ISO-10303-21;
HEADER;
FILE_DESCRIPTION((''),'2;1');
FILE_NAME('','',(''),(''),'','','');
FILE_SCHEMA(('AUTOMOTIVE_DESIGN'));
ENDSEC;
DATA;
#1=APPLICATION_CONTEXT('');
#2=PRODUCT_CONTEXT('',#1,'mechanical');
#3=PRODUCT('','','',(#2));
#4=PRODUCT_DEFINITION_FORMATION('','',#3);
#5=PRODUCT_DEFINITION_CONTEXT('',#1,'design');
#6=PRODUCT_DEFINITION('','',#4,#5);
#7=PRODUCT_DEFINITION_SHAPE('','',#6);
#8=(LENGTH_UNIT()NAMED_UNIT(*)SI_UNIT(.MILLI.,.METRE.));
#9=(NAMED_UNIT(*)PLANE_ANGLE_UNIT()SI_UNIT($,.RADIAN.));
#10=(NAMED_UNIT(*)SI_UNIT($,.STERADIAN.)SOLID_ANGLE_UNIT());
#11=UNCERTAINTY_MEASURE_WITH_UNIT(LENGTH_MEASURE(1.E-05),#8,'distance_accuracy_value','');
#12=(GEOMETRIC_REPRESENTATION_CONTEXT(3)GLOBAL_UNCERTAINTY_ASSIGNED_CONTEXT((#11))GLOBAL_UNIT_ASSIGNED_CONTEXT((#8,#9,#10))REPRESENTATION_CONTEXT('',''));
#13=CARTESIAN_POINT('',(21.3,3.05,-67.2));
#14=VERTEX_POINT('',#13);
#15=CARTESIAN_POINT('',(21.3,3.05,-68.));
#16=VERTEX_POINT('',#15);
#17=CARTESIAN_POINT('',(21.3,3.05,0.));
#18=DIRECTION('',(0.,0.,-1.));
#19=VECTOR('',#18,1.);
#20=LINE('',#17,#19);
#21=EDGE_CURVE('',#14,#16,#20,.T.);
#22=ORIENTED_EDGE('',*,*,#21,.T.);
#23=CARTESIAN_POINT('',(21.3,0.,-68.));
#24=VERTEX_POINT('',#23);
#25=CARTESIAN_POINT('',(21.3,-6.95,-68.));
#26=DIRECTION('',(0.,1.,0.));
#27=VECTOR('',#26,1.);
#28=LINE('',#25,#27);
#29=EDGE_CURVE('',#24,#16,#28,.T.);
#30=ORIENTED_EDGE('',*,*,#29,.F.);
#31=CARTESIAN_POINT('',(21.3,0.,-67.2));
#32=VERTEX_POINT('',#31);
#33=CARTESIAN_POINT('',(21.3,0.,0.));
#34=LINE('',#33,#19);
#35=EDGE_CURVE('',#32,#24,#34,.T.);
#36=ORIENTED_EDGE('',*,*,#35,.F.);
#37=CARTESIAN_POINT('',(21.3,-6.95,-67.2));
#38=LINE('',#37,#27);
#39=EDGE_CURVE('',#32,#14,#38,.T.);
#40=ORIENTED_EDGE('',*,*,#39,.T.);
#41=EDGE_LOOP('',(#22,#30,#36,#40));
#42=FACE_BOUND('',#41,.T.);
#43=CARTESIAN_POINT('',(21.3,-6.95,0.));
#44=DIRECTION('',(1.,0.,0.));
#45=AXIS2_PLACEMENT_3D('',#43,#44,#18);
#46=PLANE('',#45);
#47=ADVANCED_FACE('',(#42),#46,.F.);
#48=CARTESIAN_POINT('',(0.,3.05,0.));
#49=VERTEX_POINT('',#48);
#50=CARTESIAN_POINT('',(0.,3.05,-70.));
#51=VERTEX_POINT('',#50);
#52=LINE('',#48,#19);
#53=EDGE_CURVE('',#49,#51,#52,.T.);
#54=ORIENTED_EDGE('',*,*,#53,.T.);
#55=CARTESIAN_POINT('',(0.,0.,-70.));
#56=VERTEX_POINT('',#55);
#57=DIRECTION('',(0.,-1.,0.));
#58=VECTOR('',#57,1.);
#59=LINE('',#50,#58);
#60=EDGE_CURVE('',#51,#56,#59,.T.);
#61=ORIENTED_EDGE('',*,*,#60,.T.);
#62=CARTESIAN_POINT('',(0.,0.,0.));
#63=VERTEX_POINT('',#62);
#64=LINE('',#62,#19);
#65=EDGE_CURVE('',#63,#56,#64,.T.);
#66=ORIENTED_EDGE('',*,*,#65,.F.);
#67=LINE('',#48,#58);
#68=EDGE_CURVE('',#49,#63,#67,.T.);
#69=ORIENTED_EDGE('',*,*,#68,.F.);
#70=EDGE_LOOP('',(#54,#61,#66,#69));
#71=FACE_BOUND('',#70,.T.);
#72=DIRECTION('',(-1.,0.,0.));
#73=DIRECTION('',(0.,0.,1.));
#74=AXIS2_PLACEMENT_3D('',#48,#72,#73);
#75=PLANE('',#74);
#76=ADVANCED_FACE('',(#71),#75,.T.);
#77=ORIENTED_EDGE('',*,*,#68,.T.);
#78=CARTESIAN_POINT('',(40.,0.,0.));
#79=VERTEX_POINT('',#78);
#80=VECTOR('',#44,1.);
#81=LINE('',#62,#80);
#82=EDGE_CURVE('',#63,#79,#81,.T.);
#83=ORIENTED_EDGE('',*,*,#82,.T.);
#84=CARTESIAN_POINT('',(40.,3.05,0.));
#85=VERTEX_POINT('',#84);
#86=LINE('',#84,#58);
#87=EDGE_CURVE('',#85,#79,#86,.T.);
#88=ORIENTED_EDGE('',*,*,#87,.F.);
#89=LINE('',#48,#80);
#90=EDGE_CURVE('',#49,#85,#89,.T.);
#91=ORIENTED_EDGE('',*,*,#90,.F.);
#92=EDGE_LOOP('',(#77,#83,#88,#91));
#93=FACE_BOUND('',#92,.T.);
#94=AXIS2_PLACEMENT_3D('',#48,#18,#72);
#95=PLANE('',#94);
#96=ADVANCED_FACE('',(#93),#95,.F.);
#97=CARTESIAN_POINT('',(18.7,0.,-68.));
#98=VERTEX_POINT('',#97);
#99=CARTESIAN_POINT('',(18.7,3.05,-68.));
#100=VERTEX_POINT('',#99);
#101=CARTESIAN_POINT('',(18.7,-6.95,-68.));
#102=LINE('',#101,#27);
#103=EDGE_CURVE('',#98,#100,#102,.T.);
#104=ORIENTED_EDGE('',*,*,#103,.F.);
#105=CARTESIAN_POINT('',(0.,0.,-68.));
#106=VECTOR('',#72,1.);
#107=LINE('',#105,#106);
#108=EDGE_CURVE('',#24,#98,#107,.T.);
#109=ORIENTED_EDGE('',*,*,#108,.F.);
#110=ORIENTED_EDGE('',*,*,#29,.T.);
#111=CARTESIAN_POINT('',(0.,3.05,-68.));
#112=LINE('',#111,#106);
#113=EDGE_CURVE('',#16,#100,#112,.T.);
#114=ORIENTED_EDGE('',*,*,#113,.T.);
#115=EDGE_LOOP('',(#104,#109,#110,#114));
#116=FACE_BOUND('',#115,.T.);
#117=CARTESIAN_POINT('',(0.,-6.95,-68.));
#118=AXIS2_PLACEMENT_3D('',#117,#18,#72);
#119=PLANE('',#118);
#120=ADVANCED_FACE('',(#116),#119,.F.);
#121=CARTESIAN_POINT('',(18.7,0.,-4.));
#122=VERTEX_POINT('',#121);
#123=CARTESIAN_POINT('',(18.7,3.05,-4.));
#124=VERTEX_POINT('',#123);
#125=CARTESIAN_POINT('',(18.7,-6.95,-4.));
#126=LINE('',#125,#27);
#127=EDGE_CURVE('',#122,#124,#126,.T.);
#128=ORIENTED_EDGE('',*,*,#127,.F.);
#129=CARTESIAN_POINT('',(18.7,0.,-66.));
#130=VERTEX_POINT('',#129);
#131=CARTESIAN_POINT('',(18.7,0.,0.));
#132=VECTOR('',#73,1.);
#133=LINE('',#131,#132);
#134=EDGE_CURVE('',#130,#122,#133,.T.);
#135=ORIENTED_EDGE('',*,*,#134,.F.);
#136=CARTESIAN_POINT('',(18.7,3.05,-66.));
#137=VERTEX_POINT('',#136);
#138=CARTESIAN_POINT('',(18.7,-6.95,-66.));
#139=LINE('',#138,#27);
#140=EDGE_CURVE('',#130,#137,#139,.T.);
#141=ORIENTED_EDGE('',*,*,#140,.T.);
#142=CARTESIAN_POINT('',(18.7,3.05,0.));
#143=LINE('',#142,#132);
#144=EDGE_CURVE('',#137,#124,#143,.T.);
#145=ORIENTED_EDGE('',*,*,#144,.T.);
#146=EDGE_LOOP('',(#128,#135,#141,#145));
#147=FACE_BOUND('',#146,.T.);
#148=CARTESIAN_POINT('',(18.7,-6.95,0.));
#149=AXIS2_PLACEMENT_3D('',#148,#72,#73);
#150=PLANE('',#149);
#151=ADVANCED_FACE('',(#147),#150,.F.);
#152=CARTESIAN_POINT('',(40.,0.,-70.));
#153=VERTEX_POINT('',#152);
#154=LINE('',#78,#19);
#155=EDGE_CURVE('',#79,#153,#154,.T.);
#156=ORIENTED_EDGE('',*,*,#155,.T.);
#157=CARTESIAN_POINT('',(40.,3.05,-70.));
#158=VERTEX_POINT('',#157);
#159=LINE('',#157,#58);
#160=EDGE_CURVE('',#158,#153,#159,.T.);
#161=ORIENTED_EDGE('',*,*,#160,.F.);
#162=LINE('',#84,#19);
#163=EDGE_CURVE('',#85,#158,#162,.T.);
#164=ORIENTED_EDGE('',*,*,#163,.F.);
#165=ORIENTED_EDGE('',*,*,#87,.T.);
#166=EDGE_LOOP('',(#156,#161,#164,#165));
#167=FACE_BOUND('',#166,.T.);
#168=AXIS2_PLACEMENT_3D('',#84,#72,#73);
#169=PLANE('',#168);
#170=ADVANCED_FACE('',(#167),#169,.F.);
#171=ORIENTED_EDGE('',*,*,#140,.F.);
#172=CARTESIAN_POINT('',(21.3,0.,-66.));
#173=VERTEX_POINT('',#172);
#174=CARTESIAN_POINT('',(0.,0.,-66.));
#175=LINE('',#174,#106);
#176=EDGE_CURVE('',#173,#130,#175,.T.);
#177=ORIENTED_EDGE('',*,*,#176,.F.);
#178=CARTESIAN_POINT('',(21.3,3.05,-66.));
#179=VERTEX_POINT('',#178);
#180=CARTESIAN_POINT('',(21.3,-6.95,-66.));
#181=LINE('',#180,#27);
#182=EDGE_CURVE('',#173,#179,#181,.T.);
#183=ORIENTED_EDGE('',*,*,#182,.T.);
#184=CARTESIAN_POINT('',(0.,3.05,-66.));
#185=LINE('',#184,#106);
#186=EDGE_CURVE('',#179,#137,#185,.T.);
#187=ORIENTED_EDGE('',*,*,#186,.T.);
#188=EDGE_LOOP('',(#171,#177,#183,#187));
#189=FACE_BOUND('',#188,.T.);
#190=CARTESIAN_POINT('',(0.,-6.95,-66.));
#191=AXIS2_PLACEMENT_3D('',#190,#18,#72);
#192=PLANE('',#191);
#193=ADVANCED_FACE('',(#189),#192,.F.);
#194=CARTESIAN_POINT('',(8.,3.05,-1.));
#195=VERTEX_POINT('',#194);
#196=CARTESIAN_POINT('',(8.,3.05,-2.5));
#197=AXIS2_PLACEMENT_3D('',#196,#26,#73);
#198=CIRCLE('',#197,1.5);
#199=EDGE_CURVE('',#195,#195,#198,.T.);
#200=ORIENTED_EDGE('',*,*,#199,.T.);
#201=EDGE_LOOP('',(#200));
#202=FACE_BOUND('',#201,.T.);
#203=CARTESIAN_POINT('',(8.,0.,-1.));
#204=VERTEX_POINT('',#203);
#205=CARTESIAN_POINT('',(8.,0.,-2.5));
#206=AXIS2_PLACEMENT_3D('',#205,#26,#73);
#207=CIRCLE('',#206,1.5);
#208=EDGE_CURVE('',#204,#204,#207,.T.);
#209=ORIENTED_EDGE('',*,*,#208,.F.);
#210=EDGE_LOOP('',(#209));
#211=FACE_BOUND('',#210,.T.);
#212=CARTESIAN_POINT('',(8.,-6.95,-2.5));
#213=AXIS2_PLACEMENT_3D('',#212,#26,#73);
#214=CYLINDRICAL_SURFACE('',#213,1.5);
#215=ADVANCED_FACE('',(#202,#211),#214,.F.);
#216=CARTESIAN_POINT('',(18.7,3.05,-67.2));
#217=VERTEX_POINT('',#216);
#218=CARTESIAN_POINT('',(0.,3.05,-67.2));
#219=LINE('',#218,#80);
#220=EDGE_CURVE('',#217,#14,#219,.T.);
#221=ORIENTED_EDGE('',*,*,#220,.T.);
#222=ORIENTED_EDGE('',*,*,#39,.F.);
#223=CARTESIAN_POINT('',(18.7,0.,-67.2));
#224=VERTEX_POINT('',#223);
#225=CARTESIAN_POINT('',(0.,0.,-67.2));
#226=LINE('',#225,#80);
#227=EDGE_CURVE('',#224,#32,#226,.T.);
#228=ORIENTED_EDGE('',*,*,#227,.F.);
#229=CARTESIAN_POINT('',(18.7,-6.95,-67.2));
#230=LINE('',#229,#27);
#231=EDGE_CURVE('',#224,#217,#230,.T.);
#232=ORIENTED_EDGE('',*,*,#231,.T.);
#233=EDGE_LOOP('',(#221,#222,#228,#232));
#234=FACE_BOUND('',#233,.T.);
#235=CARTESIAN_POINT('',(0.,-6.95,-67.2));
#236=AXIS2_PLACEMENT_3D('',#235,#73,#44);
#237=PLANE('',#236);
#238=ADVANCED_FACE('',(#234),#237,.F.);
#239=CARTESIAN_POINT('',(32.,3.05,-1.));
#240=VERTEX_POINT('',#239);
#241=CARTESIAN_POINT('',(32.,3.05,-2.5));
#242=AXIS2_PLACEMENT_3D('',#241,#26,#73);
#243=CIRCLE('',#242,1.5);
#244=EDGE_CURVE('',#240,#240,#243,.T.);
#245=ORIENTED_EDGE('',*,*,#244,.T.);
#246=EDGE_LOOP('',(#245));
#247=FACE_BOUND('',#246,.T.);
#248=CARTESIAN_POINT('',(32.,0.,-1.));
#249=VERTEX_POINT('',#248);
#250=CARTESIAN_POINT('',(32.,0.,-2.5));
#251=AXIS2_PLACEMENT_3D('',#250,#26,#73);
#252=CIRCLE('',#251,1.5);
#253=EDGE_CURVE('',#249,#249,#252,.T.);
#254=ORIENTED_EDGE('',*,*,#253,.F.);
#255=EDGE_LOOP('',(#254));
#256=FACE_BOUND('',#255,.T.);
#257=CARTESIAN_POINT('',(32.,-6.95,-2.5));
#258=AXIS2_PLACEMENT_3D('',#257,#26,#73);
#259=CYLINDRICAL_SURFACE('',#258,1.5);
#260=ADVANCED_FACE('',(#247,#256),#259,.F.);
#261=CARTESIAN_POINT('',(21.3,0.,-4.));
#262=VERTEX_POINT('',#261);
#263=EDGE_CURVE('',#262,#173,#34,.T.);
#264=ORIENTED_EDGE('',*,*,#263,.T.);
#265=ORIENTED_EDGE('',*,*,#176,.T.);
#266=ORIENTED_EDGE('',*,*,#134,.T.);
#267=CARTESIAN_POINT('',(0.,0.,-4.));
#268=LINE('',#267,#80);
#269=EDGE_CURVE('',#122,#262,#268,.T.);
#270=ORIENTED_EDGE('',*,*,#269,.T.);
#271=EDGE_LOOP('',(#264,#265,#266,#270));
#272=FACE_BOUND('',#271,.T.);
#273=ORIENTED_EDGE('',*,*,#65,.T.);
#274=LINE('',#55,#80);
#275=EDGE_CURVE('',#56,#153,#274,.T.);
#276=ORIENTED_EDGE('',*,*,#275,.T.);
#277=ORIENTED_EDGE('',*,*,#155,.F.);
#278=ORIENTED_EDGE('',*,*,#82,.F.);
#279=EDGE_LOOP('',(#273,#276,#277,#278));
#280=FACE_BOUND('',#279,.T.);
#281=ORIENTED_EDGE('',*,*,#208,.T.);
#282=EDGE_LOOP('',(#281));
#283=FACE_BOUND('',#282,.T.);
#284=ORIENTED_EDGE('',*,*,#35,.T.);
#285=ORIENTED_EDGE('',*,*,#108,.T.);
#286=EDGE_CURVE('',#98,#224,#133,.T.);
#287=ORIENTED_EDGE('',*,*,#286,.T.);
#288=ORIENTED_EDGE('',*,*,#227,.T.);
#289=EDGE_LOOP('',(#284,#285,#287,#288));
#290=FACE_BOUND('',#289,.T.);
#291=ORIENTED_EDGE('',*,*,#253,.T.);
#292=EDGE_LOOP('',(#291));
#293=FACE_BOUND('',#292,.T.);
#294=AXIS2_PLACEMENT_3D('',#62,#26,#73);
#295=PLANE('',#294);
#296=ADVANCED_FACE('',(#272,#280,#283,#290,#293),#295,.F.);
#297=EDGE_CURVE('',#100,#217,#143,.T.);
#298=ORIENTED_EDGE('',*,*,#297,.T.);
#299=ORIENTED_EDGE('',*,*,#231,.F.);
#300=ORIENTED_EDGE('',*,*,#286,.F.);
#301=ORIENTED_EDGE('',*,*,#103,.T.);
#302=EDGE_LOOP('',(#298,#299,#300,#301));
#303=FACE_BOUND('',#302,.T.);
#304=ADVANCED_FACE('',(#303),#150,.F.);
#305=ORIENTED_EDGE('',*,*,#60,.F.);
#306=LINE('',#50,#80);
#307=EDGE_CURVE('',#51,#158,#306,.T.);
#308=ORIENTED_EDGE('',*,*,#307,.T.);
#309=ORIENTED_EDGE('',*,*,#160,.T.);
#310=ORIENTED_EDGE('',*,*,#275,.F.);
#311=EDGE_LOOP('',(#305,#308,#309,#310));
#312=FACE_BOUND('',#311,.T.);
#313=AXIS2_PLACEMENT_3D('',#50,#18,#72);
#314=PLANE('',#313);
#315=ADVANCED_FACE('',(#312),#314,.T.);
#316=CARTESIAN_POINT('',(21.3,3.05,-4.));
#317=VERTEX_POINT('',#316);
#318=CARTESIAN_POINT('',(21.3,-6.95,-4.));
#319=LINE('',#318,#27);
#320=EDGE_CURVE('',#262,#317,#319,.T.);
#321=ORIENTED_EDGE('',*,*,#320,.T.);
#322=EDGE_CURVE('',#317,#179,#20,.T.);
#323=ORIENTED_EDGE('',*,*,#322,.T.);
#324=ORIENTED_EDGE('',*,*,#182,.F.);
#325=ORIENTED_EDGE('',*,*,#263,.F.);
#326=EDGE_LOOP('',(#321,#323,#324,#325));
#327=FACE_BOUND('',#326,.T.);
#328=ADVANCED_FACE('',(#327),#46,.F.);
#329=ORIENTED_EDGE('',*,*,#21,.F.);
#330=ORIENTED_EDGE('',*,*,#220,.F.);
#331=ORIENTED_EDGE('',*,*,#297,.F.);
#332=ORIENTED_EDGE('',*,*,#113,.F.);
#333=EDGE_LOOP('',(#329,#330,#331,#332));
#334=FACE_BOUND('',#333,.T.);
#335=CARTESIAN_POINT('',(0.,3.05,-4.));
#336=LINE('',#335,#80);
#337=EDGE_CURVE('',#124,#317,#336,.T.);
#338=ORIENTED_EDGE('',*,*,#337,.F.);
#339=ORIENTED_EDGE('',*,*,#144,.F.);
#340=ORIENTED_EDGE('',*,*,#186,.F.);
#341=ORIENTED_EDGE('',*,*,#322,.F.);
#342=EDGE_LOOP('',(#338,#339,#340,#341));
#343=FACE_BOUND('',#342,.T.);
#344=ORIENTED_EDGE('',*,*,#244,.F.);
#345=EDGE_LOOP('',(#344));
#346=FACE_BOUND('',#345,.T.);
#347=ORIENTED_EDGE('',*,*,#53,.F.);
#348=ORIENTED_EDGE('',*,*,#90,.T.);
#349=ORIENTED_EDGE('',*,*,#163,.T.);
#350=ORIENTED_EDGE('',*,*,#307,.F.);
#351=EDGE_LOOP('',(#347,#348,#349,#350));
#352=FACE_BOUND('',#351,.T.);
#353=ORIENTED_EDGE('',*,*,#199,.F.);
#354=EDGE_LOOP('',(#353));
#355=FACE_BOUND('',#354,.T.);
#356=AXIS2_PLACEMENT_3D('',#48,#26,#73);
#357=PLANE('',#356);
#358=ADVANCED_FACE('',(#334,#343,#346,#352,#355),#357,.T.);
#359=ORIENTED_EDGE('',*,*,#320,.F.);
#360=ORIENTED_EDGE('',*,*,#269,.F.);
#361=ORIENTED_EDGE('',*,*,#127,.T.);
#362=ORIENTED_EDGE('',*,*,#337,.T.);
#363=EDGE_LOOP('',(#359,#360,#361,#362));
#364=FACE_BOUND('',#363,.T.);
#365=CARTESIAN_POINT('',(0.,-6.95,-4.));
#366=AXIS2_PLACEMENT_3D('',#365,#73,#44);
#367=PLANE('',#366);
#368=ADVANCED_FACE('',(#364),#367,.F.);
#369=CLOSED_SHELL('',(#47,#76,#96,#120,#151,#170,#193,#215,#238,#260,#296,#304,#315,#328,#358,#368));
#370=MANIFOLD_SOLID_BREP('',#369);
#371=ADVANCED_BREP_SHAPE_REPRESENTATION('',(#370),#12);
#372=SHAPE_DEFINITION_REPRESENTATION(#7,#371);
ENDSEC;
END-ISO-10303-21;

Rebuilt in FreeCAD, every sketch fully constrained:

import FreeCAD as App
import Part
import Sketcher

V = App.Vector

doc = App.newDocument("Part")
params = doc.addObject("Spreadsheet::Sheet", "Params")
for row, (alias, value) in enumerate([
    ("sketch1_width", "40 mm"),
    ("sketch1_height", "70 mm"),
    ("pad1_length", "3.05 mm"),
    ("sketch2_height", "62 mm"),
    ("sketch2_width", "2.6 mm"),
    ("sketch2_height2", "0.8 mm"),
    ("pocket1_length", "10 mm"),
    ("sketch3_diameter", "3 mm"),
    ("pocket2_length", "10 mm"),
], start=1):
    params.set(f"A{row}", alias)
    params.set(f"B{row}", "=" + value)
    params.setAlias(f"B{row}", alias)

body = doc.addObject("PartDesign::Body", "Body")

# Sketch on XZ plane
sketch1 = body.newObject("Sketcher::SketchObject", "Sketch")
sketch1.AttachmentSupport = (doc.getObject("XZ_Plane"), [""])
sketch1.MapMode = "FlatFace"
sketch1.addGeometry([
    Part.LineSegment(V(0, -70, 0), V(0, 0, 0)),
    Part.LineSegment(V(0, 0, 0), V(40, 0, 0)),
    Part.LineSegment(V(40, 0, 0), V(40, -70, 0)),
    Part.LineSegment(V(40, -70, 0), V(0, -70, 0)),
], False)
sketch1.addConstraint([
    Sketcher.Constraint("Coincident", 0, 2, 1, 1),
    Sketcher.Constraint("Coincident", 1, 2, 2, 1),
    Sketcher.Constraint("Coincident", 2, 2, 3, 1),
    Sketcher.Constraint("Coincident", 3, 2, 0, 1),
    Sketcher.Constraint("Vertical", 0),
    Sketcher.Constraint("Horizontal", 1),
    Sketcher.Constraint("Vertical", 2),
    Sketcher.Constraint("Horizontal", 3),
    Sketcher.Constraint("Coincident", 0, 2, -1, 1),
    Sketcher.Constraint("DistanceX", 1, 1, 1, 2, 40.0),
    Sketcher.Constraint("DistanceY", 0, 1, 0, 2, 70.0),
])
sketch1.setExpression("Constraints[9]", "Params.sketch1_width")
sketch1.setExpression("Constraints[10]", "Params.sketch1_height")
pad1 = body.newObject("PartDesign::Pad", "Pad")
pad1.Profile = sketch1
pad1.setExpression("Length", "Params.pad1_length")
pad1.Reversed = True

# Sketch on XZ plane
sketch2 = body.newObject("Sketcher::SketchObject", "Sketch001")
sketch2.AttachmentSupport = (doc.getObject("XZ_Plane"), [""])
sketch2.MapMode = "FlatFace"
sketch2.AttachmentOffset = App.Placement(V(0, 0, -3.05), App.Rotation())
sketch2.addGeometry([
    Part.LineSegment(V(18.7, -66, 0), V(18.7, -4, 0)),  # 0
    Part.LineSegment(V(18.7, -4, 0), V(21.3, -4, 0)),  # 1
    Part.LineSegment(V(21.3, -4, 0), V(21.3, -66, 0)),  # 2
    Part.LineSegment(V(21.3, -66, 0), V(18.7, -66, 0)),  # 3
    Part.LineSegment(V(18.7, -68, 0), V(18.7, -67.2, 0)),  # 4
    Part.LineSegment(V(18.7, -67.2, 0), V(21.3, -67.2, 0)),  # 5
    Part.LineSegment(V(21.3, -67.2, 0), V(21.3, -68, 0)),  # 6
    Part.LineSegment(V(21.3, -68, 0), V(18.7, -68, 0)),  # 7
], False)
sketch2.addConstraint([
    Sketcher.Constraint("Coincident", 0, 2, 1, 1),
    Sketcher.Constraint("Coincident", 1, 2, 2, 1),
    Sketcher.Constraint("Coincident", 2, 2, 3, 1),
    Sketcher.Constraint("Coincident", 3, 2, 0, 1),
    Sketcher.Constraint("Coincident", 4, 2, 5, 1),
    Sketcher.Constraint("Coincident", 5, 2, 6, 1),
    Sketcher.Constraint("Coincident", 6, 2, 7, 1),
    Sketcher.Constraint("Coincident", 7, 2, 4, 1),
    Sketcher.Constraint("Vertical", 0),
    Sketcher.Constraint("Horizontal", 1),
    Sketcher.Constraint("Vertical", 2),
    Sketcher.Constraint("Horizontal", 3),
    Sketcher.Constraint("Vertical", 4),
    Sketcher.Constraint("Horizontal", 5),
    Sketcher.Constraint("Vertical", 6),
    Sketcher.Constraint("Horizontal", 7),
    Sketcher.Constraint("Vertical", 3, 2, 4, 2),
    Sketcher.Constraint("Vertical", 2, 2, 5, 2),
    Sketcher.Constraint("DistanceY", 0, 1, 0, 2, 62.0),
    Sketcher.Constraint("DistanceX", 1, 1, 1, 2, 2.6),
    Sketcher.Constraint("DistanceY", 4, 1, 4, 2, 0.8),
    Sketcher.Constraint("DistanceY", 0, 2, -1, 1, 4.0),
    Sketcher.Constraint("DistanceY", 6, 2, -1, 1, 68.0),
    Sketcher.Constraint("DistanceX", -1, 1, 0, 2, 18.7),
])
sketch2.setExpression("Constraints[18]", "Params.sketch2_height")
sketch2.setExpression("Constraints[19]", "Params.sketch2_width")
sketch2.setExpression("Constraints[20]", "Params.sketch2_height2")
pocket1 = body.newObject("PartDesign::Pocket", "Pocket")
pocket1.Profile = sketch2
pocket1.setExpression("Length", "Params.pocket1_length")
pocket1.Reversed = True

# Sketch on XZ plane
sketch3 = body.newObject("Sketcher::SketchObject", "Sketch002")
sketch3.AttachmentSupport = (doc.getObject("XZ_Plane"), [""])
sketch3.MapMode = "FlatFace"
sketch3.AttachmentOffset = App.Placement(V(0, 0, -3.05), App.Rotation())
sketch3.addGeometry([
    Part.Circle(V(8, -2.5, 0), V(0, 0, 1), 1.5),
    Part.Circle(V(32, -2.5, 0), V(0, 0, 1), 1.5),
], False)
sketch3.addConstraint([
    Sketcher.Constraint("Equal", 0, 1),
    Sketcher.Constraint("Horizontal", 0, 3, 1, 3),
    Sketcher.Constraint("Diameter", 0, 3.0),
    Sketcher.Constraint("DistanceX", -1, 1, 0, 3, 8.0),
    Sketcher.Constraint("DistanceX", -1, 1, 1, 3, 32.0),
    Sketcher.Constraint("DistanceY", 0, 3, -1, 1, 2.5),
])
sketch3.setExpression("Constraints[2]", "Params.sketch3_diameter")
pocket2 = body.newObject("PartDesign::Pocket", "Pocket001")
pocket2.Profile = sketch3
pocket2.setExpression("Length", "Params.pocket2_length")
pocket2.Reversed = True

doc.recompute()
